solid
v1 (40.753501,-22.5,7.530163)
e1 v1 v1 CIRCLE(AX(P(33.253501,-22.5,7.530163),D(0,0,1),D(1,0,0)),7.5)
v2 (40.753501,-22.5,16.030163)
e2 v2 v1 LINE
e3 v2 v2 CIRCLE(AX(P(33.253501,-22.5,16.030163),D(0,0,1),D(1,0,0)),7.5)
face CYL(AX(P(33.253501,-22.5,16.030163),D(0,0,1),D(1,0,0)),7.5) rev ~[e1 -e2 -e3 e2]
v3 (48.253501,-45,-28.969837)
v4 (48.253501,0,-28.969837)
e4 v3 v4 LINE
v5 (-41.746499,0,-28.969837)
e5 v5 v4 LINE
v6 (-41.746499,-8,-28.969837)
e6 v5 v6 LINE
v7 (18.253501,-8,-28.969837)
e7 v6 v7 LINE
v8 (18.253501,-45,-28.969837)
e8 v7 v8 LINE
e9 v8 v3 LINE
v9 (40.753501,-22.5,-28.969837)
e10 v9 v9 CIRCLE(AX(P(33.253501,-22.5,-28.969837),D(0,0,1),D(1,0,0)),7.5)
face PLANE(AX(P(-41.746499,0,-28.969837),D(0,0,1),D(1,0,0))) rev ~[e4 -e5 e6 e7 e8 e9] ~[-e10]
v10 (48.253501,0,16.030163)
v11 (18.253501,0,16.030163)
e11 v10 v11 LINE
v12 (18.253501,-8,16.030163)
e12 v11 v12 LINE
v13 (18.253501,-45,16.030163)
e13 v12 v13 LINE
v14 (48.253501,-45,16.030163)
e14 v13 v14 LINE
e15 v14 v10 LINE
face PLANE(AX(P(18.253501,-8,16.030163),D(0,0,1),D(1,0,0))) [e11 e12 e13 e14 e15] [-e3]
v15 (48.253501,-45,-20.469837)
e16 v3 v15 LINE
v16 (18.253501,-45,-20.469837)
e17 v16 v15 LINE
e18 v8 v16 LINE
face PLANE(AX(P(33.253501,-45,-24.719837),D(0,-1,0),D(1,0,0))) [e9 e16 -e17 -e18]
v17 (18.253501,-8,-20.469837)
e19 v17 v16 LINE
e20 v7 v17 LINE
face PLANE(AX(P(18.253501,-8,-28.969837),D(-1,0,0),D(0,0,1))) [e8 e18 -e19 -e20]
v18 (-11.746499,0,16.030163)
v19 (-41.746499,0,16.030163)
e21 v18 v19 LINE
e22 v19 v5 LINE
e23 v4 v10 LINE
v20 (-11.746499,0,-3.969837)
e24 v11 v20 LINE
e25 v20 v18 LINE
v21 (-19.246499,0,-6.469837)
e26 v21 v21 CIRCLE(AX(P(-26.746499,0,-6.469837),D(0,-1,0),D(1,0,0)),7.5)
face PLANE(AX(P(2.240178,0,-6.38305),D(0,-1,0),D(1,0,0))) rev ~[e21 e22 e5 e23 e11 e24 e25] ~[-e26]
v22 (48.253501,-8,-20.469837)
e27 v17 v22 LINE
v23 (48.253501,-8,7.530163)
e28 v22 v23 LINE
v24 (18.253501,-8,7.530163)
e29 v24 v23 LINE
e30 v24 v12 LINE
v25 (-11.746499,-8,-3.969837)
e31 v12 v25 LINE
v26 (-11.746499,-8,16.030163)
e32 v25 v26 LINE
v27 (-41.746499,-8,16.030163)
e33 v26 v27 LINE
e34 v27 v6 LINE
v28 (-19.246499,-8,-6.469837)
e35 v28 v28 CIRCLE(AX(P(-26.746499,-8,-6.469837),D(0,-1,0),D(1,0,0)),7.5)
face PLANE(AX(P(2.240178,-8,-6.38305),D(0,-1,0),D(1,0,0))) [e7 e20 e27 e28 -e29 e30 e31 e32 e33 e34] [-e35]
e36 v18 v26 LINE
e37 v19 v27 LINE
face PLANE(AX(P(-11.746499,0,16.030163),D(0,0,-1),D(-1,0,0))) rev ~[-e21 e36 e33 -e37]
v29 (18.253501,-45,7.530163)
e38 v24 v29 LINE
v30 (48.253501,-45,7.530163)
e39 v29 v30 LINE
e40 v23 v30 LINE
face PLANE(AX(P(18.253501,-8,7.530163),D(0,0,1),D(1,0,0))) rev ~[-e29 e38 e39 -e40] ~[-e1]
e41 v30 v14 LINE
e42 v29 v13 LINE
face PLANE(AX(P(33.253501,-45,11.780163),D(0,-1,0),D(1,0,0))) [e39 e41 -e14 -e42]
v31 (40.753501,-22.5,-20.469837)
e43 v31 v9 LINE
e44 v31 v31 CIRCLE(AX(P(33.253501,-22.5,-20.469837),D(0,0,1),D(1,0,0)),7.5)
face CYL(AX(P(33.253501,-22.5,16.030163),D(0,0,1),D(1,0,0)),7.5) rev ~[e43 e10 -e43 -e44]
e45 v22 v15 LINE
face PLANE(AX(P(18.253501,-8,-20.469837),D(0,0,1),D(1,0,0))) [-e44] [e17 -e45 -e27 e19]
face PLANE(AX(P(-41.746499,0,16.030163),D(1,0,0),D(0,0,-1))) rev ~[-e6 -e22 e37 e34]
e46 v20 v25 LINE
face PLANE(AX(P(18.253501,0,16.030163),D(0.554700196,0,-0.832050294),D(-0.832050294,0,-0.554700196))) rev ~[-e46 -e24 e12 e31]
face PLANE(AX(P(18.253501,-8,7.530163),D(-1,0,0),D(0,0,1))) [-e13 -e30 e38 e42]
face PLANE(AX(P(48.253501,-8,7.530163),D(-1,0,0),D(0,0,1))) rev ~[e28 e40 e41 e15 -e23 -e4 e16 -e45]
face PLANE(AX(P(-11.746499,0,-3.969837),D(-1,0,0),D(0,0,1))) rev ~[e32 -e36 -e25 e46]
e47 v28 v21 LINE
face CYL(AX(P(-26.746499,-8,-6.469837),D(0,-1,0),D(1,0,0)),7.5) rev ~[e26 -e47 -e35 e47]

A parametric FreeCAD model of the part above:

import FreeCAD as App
import Part
import Sketcher
from FreeCAD import Vector

doc = App.newDocument("Part")
body = doc.addObject("PartDesign::Body", "Body")

# Sketch on XZ plane
sketch1 = body.newObject("Sketcher::SketchObject", "Sketch")
sketch1.AttachmentSupport = (doc.getObject("XZ_Plane"), [""])
sketch1.MapMode = "FlatFace"
sketch1.addGeometry([
    Part.LineSegment(Vector(-42, -29, 0), Vector(48, -29, 0)),  # 0
    Part.LineSegment(Vector(48, -29, 0), Vector(48, 16, 0)),  # 1
    Part.LineSegment(Vector(48, 16, 0), Vector(18, 16, 0)),  # 2
    Part.LineSegment(Vector(18, 16, 0), Vector(-12, -4, 0)),  # 3
    Part.LineSegment(Vector(-12, -4, 0), Vector(-12, 16, 0)),  # 4
    Part.LineSegment(Vector(-12, 16, 0), Vector(-42, 16, 0)),  # 5
    Part.LineSegment(Vector(-42, 16, 0), Vector(-42, -29, 0)),  # 6
], False)
sketch1.addConstraint([
    Sketcher.Constraint("Coincident", 0, 2, 1, 1),
    Sketcher.Constraint("Coincident", 1, 2, 2, 1),
    Sketcher.Constraint("Coincident", 2, 2, 3, 1),
    Sketcher.Constraint("Coincident", 3, 2, 4, 1),
    Sketcher.Constraint("Coincident", 4, 2, 5, 1),
    Sketcher.Constraint("Coincident", 5, 2, 6, 1),
    Sketcher.Constraint("Coincident", 6, 2, 0, 1),
    Sketcher.Constraint("Horizontal", 0),
    Sketcher.Constraint("Vertical", 1),
    Sketcher.Constraint("Horizontal", 2),
    Sketcher.Constraint("Vertical", 4),
    Sketcher.Constraint("Horizontal", 5),
    Sketcher.Constraint("Vertical", 6),
    Sketcher.Constraint("Horizontal", 2, 2, 4, 2),
    Sketcher.Constraint("Equal", 2, 5),
    Sketcher.Constraint("DistanceX", 0, 1, 0, 2, 90.0),
    Sketcher.Constraint("DistanceX", 2, 2, 2, 1, 30.0),
    Sketcher.Constraint("DistanceY", 1, 1, 1, 2, 45.0),
    Sketcher.Constraint("DistanceY", 4, 1, 4, 2, 20.0),
    Sketcher.Constraint("DistanceX", -1, 1, 0, 2, 48.253501),
    Sketcher.Constraint("DistanceY", 0, 2, -1, 1, 28.969837),
])
pad1 = body.newObject("PartDesign::Pad", "Pad")
pad1.Profile = sketch1
pad1.Length = 8

# Sketch on XZ plane
sketch2 = body.newObject("Sketcher::SketchObject", "Sketch001")
sketch2.AttachmentSupport = (doc.getObject("XZ_Plane"), [""])
sketch2.MapMode = "FlatFace"
sketch2.AttachmentOffset = App.Placement(Vector(0, 0, 8), App.Rotation())
sketch2.addGeometry([
    Part.LineSegment(Vector(18, 16, 0), Vector(18, 8, 0)),  # 0
    Part.LineSegment(Vector(18, 8, 0), Vector(48, 8, 0)),  # 1
    Part.LineSegment(Vector(48, 8, 0), Vector(48, 16, 0)),  # 2
    Part.LineSegment(Vector(48, 16, 0), Vector(18, 16, 0)),  # 3
    Part.LineSegment(Vector(18, -20, 0), Vector(18, -29, 0)),  # 4
    Part.LineSegment(Vector(18, -29, 0), Vector(48, -29, 0)),  # 5
    Part.LineSegment(Vector(48, -29, 0), Vector(48, -20, 0)),  # 6
    Part.LineSegment(Vector(48, -20, 0), Vector(18, -20, 0)),  # 7
], False)
sketch2.addConstraint([
    Sketcher.Constraint("Coincident", 0, 2, 1, 1),
    Sketcher.Constraint("Coincident", 1, 2, 2, 1),
    Sketcher.Constraint("Coincident", 2, 2, 3, 1),
    Sketcher.Constraint("Coincident", 3, 2, 0, 1),
    Sketcher.Constraint("Coincident", 4, 2, 5, 1),
    Sketcher.Constraint("Coincident", 5, 2, 6, 1),
    Sketcher.Constraint("Coincident", 6, 2, 7, 1),
    Sketcher.Constraint("Coincident", 7, 2, 4, 1),
    Sketcher.Constraint("Vertical", 0),
    Sketcher.Constraint("Horizontal", 1),
    Sketcher.Constraint("Vertical", 2),
    Sketcher.Constraint("Horizontal", 3),
    Sketcher.Constraint("Vertical", 4),
    Sketcher.Constraint("Horizontal", 5),
    Sketcher.Constraint("Vertical", 6),
    Sketcher.Constraint("Horizontal", 7),
    Sketcher.Constraint("Vertical", 3, 2, 4, 2),
    Sketcher.Constraint("Vertical", 2, 2, 5, 2),
    Sketcher.Constraint("Equal", 2, 4),
    Sketcher.Constraint("DistanceX", 1, 1, 1, 2, 30.0),
    Sketcher.Constraint("DistanceY", 0, 2, 0, 1, 8.5),
    Sketcher.Constraint("DistanceY", 4, 2, 3, 2, 45.0),
    Sketcher.Constraint("DistanceX", -1, 1, 0, 2, 18.253501),
    Sketcher.Constraint("DistanceY", -1, 1, 0, 2, 7.530163),
])
pad2 = body.newObject("PartDesign::Pad", "Pad001")
pad2.Profile = sketch2
pad2.Length = 37

# Sketch on XY plane
sketch3 = body.newObject("Sketcher::SketchObject", "Sketch002")
sketch3.AttachmentSupport = (doc.getObject("XY_Plane"), [""])
sketch3.MapMode = "FlatFace"
sketch3.AttachmentOffset = App.Placement(Vector(0, 0, 16.030163), App.Rotation())
sketch3.addGeometry(Part.Circle(Vector(33, -22, 0), Vector(0, 0, 1), 8), False)
sketch3.addConstraint([
    Sketcher.Constraint("Diameter", 0, 15.0),
    Sketcher.Constraint("DistanceY", 0, 3, -1, 1, 22.5),
    Sketcher.Constraint("DistanceX", -1, 1, 0, 3, 33.253501),
])
pocket1 = body.newObject("PartDesign::Pocket", "Pocket")
pocket1.Profile = sketch3
pocket1.Type = "ThroughAll"

# Sketch on XZ plane
sketch4 = body.newObject("Sketcher::SketchObject", "Sketch003")
sketch4.AttachmentSupport = (doc.getObject("XZ_Plane"), [""])
sketch4.MapMode = "FlatFace"
sketch4.AttachmentOffset = App.Placement(Vector(0, 0, 8), App.Rotation())
sketch4.addGeometry(Part.Circle(Vector(-27, -6, 0), Vector(0, 0, 1), 8), False)
sketch4.addConstraint([
    Sketcher.Constraint("Diameter", 0, 15.0),
    Sketcher.Constraint("DistanceX", 0, 3, -1, 1, 26.746499),
    Sketcher.Constraint("DistanceY", 0, 3, -1, 1, 6.469837),
])
pocket2 = body.newObject("PartDesign::Pocket", "Pocket001")
pocket2.Profile = sketch4
pocket2.Type = "ThroughAll"

doc.recompute()
